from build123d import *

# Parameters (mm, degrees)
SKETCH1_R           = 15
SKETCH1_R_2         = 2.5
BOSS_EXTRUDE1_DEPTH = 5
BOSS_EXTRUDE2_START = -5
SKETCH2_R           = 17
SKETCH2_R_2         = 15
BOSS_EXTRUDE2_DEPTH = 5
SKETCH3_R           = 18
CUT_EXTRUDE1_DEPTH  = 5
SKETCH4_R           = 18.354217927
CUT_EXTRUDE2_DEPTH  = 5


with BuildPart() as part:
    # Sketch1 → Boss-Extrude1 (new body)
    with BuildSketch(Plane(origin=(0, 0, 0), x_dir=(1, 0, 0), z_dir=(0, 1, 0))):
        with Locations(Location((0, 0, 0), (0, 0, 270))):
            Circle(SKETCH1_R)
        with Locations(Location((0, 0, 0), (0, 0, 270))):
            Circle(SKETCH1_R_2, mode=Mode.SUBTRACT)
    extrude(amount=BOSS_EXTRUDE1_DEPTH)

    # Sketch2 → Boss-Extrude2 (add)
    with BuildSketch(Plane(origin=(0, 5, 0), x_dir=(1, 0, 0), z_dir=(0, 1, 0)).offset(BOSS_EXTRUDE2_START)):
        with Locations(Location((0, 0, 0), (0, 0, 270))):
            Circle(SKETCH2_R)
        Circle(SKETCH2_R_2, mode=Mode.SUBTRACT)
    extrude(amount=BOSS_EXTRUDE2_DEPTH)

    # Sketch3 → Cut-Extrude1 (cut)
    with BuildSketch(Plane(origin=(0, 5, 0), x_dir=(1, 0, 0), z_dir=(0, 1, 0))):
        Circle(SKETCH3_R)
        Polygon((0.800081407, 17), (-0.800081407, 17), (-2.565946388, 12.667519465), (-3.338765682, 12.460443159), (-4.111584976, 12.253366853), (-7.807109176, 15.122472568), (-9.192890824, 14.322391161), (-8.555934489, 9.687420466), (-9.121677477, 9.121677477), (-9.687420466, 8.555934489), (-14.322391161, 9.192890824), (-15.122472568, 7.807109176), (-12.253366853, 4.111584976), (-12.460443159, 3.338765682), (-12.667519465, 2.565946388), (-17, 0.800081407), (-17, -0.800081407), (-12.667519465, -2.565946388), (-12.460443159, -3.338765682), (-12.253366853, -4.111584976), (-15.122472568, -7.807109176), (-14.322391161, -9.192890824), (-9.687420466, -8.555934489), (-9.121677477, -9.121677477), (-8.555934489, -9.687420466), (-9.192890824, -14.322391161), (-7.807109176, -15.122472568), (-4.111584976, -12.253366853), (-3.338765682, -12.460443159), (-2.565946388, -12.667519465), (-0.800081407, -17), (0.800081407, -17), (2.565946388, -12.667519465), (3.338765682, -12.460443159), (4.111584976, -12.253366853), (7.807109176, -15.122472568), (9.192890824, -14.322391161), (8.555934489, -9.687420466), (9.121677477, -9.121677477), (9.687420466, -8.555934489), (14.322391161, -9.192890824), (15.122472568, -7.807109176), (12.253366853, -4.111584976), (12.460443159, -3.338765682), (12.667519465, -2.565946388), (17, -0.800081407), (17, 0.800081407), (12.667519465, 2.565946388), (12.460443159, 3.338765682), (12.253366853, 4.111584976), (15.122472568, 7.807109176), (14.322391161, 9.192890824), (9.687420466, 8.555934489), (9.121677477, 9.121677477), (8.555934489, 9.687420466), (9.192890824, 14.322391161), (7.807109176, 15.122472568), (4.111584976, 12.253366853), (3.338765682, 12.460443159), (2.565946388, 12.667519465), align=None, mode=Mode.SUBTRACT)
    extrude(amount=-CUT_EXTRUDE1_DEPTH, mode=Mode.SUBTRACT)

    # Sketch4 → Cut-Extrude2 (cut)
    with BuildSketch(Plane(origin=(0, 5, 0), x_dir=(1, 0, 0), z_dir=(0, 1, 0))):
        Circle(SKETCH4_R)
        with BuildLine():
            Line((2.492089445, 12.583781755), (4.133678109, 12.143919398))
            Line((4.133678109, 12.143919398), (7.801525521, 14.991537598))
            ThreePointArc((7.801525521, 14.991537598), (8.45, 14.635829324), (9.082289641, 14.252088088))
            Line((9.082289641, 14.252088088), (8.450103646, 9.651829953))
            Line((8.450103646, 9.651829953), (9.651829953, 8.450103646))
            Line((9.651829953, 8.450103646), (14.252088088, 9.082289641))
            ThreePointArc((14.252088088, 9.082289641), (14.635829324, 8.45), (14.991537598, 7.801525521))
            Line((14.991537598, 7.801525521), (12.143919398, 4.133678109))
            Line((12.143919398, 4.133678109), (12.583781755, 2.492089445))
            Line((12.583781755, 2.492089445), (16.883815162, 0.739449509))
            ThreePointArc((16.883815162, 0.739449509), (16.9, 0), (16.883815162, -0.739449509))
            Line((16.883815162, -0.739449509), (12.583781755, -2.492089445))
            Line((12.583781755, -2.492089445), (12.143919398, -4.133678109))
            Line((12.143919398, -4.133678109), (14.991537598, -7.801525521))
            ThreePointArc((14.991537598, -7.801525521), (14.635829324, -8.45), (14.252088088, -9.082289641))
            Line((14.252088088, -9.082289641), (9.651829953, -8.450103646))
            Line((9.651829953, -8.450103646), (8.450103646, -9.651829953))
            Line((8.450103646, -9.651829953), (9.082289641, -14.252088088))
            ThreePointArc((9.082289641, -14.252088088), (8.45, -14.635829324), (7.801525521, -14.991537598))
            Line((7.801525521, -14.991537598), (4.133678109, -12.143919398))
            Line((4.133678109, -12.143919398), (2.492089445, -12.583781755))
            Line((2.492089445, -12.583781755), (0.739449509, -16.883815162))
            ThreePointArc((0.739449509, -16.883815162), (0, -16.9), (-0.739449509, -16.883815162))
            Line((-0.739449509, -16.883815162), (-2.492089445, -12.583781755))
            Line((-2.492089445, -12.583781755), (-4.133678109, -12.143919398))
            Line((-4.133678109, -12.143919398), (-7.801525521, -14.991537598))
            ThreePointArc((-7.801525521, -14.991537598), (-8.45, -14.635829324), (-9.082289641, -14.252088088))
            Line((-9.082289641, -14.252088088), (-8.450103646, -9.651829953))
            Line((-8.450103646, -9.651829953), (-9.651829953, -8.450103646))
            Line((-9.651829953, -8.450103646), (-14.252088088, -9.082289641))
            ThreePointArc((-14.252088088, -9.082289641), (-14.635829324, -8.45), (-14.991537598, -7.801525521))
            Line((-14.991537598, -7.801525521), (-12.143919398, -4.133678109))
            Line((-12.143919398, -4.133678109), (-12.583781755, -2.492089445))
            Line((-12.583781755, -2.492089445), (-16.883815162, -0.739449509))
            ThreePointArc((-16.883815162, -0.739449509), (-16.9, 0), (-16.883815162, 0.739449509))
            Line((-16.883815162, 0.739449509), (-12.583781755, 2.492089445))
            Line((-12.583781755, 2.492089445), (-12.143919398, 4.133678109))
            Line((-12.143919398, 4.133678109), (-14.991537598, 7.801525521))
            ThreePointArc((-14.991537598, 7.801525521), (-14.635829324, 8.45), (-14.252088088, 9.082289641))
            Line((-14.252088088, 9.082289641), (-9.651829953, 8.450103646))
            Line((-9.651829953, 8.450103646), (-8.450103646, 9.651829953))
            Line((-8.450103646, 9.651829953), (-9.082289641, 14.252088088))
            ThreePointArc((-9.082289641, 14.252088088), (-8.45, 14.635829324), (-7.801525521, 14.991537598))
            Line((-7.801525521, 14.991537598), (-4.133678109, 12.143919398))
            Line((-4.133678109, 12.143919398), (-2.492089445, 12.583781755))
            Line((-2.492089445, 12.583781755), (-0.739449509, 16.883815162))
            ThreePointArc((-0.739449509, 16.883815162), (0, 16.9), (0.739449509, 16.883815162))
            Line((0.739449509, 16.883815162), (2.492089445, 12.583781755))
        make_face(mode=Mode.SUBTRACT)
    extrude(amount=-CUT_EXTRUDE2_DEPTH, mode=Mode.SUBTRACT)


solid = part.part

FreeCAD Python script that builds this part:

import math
import FreeCAD as App
import Part
import Sketcher
from FreeCAD import Vector
Q = App.Units.Quantity


def add_polygon(sketch, points):
    """Adds a closed chain of lines whose ends are joined by coincident constraints."""
    first, n = sketch.GeometryCount, len(points)
    for a, b in zip(points, points[1:] + points[:1]):
        sketch.addGeometry(Part.LineSegment(App.Vector(*a, 0), App.Vector(*b, 0)), False)
    for i in range(n):
        sketch.addConstraint(Sketcher.Constraint("Coincident", first + i, 2, first + (i + 1) % n, 1))

doc = App.newDocument("Part")
body = doc.addObject("PartDesign::Body", "Body")

sketch1 = doc.addObject("Sketcher::SketchObject", "Sketch")
body.addObject(sketch1)
sketch1.AttachmentSupport = (doc.XZ_Plane, [""])
sketch1.MapMode = "FlatFace"
sketch1.addGeometry(Part.Circle(Vector(0, 0, 0), Vector(0, 0, 1), 15), False)
sketch1.addGeometry(Part.Circle(Vector(0, 0, 0), Vector(0, 0, 1), 2.5), False)
sketch1.addConstraint(Sketcher.Constraint("Coincident", 0, 3, -1, 1))
sketch1.addConstraint(Sketcher.Constraint("Coincident", 1, 3, -1, 1))
sketch1.addConstraint(Sketcher.Constraint("Diameter", 0, 30.0))
sketch1.addConstraint(Sketcher.Constraint("Diameter", 1, 5.0))
pad1 = doc.addObject("PartDesign::Pad", "Pad")
body.addObject(pad1)
pad1.Profile = sketch1
pad1.Length = 5
pad1.Reversed = True

sketch2 = doc.addObject("Sketcher::SketchObject", "Sketch001")
body.addObject(sketch2)
sketch2.AttachmentSupport = (doc.XZ_Plane, [""])
sketch2.MapMode = "FlatFace"
sketch2.addGeometry(Part.Circle(Vector(0, 0, 0), Vector(0, 0, 1), 17), False)
sketch2.addGeometry(Part.Circle(Vector(0, 0, 0), Vector(0, 0, 1), 15), False)
sketch2.addConstraint(Sketcher.Constraint("Coincident", 0, 3, -1, 1))
sketch2.addConstraint(Sketcher.Constraint("Coincident", 1, 3, -1, 1))
sketch2.addConstraint(Sketcher.Constraint("Diameter", 0, 34.0))
sketch2.addConstraint(Sketcher.Constraint("Diameter", 1, 30.0))
pad2 = doc.addObject("PartDesign::Pad", "Pad001")
body.addObject(pad2)
pad2.Profile = sketch2
pad2.Length = 5
pad2.Reversed = True

sketch3 = doc.addObject("Sketcher::SketchObject", "Sketch002")
body.addObject(sketch3)
sketch3.AttachmentSupport = (doc.XZ_Plane, [""])
sketch3.MapMode = "FlatFace"
sketch3.AttachmentOffset = App.Placement(Vector(0, 0, -5), App.Rotation())
sketch3.addGeometry(Part.Circle(Vector(0, 0, 0), Vector(0, 0, 1), 18), False)
add_polygon(sketch3, [(-0.8, -17), (0.8, -17), (2.6, -12.7), (4.1, -12.3), (7.8, -15.1), (9.2, -14.3), (8.6, -9.7), (9.1, -9.1), (9.7, -8.6), (14.3, -9.2), (15.1, -7.8), (12.3, -4.1), (12.7, -2.6), (17, -0.8), (17, 0.8), (12.7, 2.6), (12.3, 4.1), (15.1, 7.8), (14.3, 9.2), (9.7, 8.6), (9.1, 9.1), (8.6, 9.7), (9.2, 14.3), (7.8, 15.1), (4.1, 12.3), (2.6, 12.7), (0.8, 17), (-0.8, 17), (-2.6, 12.7), (-4.1, 12.3), (-7.8, 15.1), (-9.2, 14.3), (-8.6, 9.7), (-9.1, 9.1), (-9.7, 8.6), (-14.3, 9.2), (-15.1, 7.8), (-12.3, 4.1), (-12.7, 2.6), (-17, 0.8), (-17, -0.8), (-12.7, -2.6), (-12.3, -4.1), (-15.1, -7.8), (-14.3, -9.2), (-9.7, -8.6), (-9.1, -9.1), (-8.6, -9.7), (-9.2, -14.3), (-7.8, -15.1), (-4.1, -12.3), (-2.6, -12.7)])
sketch3.addConstraint(Sketcher.Constraint("Horizontal", 1))
sketch3.addConstraint(Sketcher.Constraint("Vertical", 14))
sketch3.addConstraint(Sketcher.Constraint("Horizontal", 27))
sketch3.addConstraint(Sketcher.Constraint("Vertical", 40))
sketch3.addConstraint(Sketcher.Constraint("Coincident", 0, 3, -1, 1))
sketch3.addConstraint(Sketcher.Constraint("Symmetric", 1, 2, 27, 2, -1, 1))
sketch3.addConstraint(Sketcher.Constraint("Symmetric", 2, 2, 28, 2, -1, 1))
sketch3.addConstraint(Sketcher.Constraint("Symmetric", 3, 2, 29, 2, -1, 1))
sketch3.addConstraint(Sketcher.Constraint("Symmetric", 4, 2, 30, 2, -1, 1))
sketch3.addConstraint(Sketcher.Constraint("Symmetric", 5, 2, 31, 2, -1, 1))
sketch3.addConstraint(Sketcher.Constraint("Symmetric", 6, 2, 32, 2, -1, 1))
sketch3.addConstraint(Sketcher.Constraint("Symmetric", 7, 2, 33, 2, -1, 1))
sketch3.addConstraint(Sketcher.Constraint("Symmetric", 8, 2, 34, 2, -1, 1))
sketch3.addConstraint(Sketcher.Constraint("Symmetric", 9, 2, 35, 2, -1, 1))
sketch3.addConstraint(Sketcher.Constraint("Symmetric", 10, 2, 36, 2, -1, 1))
sketch3.addConstraint(Sketcher.Constraint("Symmetric", 11, 2, 37, 2, -1, 1))
sketch3.addConstraint(Sketcher.Constraint("Symmetric", 12, 2, 38, 2, -1, 1))
sketch3.addConstraint(Sketcher.Constraint("Symmetric", 13, 2, 39, 2, -1, 1))
sketch3.addConstraint(Sketcher.Constraint("Symmetric", 15, 2, 41, 2, -1, 1))
sketch3.addConstraint(Sketcher.Constraint("Symmetric", 16, 2, 42, 2, -1, 1))
sketch3.addConstraint(Sketcher.Constraint("Symmetric", 17, 2, 43, 2, -1, 1))
sketch3.addConstraint(Sketcher.Constraint("Symmetric", 18, 2, 44, 2, -1, 1))
sketch3.addConstraint(Sketcher.Constraint("Symmetric", 19, 2, 45, 2, -1, 1))
sketch3.addConstraint(Sketcher.Constraint("Symmetric", 20, 2, 46, 2, -1, 1))
sketch3.addConstraint(Sketcher.Constraint("Symmetric", 21, 2, 47, 2, -1, 1))
sketch3.addConstraint(Sketcher.Constraint("Symmetric", 22, 2, 48, 2, -1, 1))
sketch3.addConstraint(Sketcher.Constraint("Symmetric", 23, 2, 49, 2, -1, 1))
sketch3.addConstraint(Sketcher.Constraint("Symmetric", 24, 2, 50, 2, -1, 1))
sketch3.addConstraint(Sketcher.Constraint("Symmetric", 25, 2, 51, 2, -1, 1))
sketch3.addConstraint(Sketcher.Constraint("Symmetric", 25, 2, 28, 2, -2))
sketch3.addConstraint(Sketcher.Constraint("Symmetric", 24, 2, 29, 2, -2))
sketch3.addConstraint(Sketcher.Constraint("Symmetric", 23, 2, 30, 2, -2))
sketch3.addConstraint(Sketcher.Constraint("Symmetric", 22, 2, 31, 2, -2))
sketch3.addConstraint(Sketcher.Constraint("Symmetric", 21, 2, 32, 2, -2))
sketch3.addConstraint(Sketcher.Constraint("Symmetric", 20, 2, 33, 2, -2))
sketch3.addConstraint(Sketcher.Constraint("Symmetric", 19, 2, 34, 2, -2))
sketch3.addConstraint(Sketcher.Constraint("Symmetric", 18, 2, 35, 2, -2))
sketch3.addConstraint(Sketcher.Constraint("Symmetric", 17, 2, 36, 2, -2))
sketch3.addConstraint(Sketcher.Constraint("Symmetric", 16, 2, 37, 2, -2))
sketch3.addConstraint(Sketcher.Constraint("Symmetric", 15, 2, 38, 2, -2))
sketch3.addConstraint(Sketcher.Constraint("Parallel", 7, 8))
sketch3.addConstraint(Sketcher.Constraint("Perpendicular", 2, 15))
sketch3.addConstraint(Sketcher.Constraint("Perpendicular", 3, 16))
sketch3.addConstraint(Sketcher.Constraint("Perpendicular", 4, 17))
sketch3.addConstraint(Sketcher.Constraint("Perpendicular", 5, 18))
sketch3.addConstraint(Sketcher.Constraint("Perpendicular", 6, 19))
sketch3.addConstraint(Sketcher.Constraint("Perpendicular", 8, 20))
sketch3.addConstraint(Sketcher.Constraint("Perpendicular", 13, 26))
sketch3.addConstraint(Sketcher.Constraint("Perpendicular", 28, 41))
sketch3.addConstraint(Sketcher.Constraint("Perpendicular", 39, 52))
sketch3.addConstraint(Sketcher.Constraint("Horizontal", 14, 2, 39, 2))
sketch3.addConstraint(Sketcher.Constraint("Equal", 27, 14))
sketch3.addConstraint(Sketcher.Constraint("Equal", 2, 4))
sketch3.addConstraint(Sketcher.Constraint("Equal", 3, 5))
sketch3.addConstraint(Sketcher.Constraint("Equal", 4, 6))
sketch3.addConstraint(Sketcher.Constraint("Equal", 7, 8))
sketch3.addConstraint(Sketcher.Constraint("Equal", 6, 9))
sketch3.addConstraint(Sketcher.Constraint("Equal", 5, 10))
sketch3.addConstraint(Sketcher.Constraint("Equal", 9, 11))
sketch3.addConstraint(Sketcher.Constraint("Equal", 10, 12))
sketch3.addConstraint(Sketcher.Constraint("Equal", 11, 13))
sketch3.addConstraint(Sketcher.Constraint("Diameter", 0, 36.0))
sketch3.addConstraint(Sketcher.Constraint("Angle", 3, Q("15 deg")))
sketch3.addConstraint(Sketcher.Constraint("Angle", 5, Q("30 deg")))
sketch3.addConstraint(Sketcher.Constraint("DistanceY", 1, 2, -1, 1, 17.0))
sketch3.addConstraint(Sketcher.Constraint("DistanceY", 2, 2, 6, 2, 2.980099))
sketch3.addConstraint(Sketcher.Constraint("DistanceX", 5, 2, 9, 2, 5.1295))
sketch3.addConstraint(Sketcher.Constraint("Distance", 7, 0.800081))
sketch3.addConstraint(Sketcher.Constraint("DistanceX", 1, 1, 1, 2, 1.600163))
sketch3.addConstraint(Sketcher.Constraint("DistanceY", 2, 2, -1, 1, 12.667519))
sketch3.addConstraint(Sketcher.Constraint("DistanceX", -1, 1, 4, 2, 7.807109))
pocket1 = doc.addObject("PartDesign::Pocket", "Pocket")
body.addObject(pocket1)
pocket1.Profile = sketch3
pocket1.Length = 5
pocket1.Reversed = True

sketch4 = doc.addObject("Sketcher::SketchObject", "Sketch003")
body.addObject(sketch4)
sketch4.AttachmentSupport = (doc.XZ_Plane, [""])
sketch4.MapMode = "FlatFace"
sketch4.AttachmentOffset = App.Placement(Vector(0, 0, -5), App.Rotation())
sketch4.addGeometry(Part.Circle(Vector(0, 0, 0), Vector(0, 0, 1), 18.4), False)
sketch4.addGeometry(Part.LineSegment(Vector(0.7, -16.9, 0), Vector(2.5, -12.6, 0)), False)
sketch4.addGeometry(Part.LineSegment(Vector(2.5, -12.6, 0), Vector(4.1, -12.1, 0)), False)
sketch4.addGeometry(Part.LineSegment(Vector(4.1, -12.1, 0), Vector(7.8, -15, 0)), False)
sketch4.addGeometry(Part.ArcOfCircle(Part.Circle(Vector(0, 0, 0), Vector(0, 0, 1), 16.9), math.radians(-62.51), math.radians(-57.49)), False)
sketch4.addGeometry(Part.LineSegment(Vector(9.1, -14.3, 0), Vector(8.5, -9.7, 0)), False)
sketch4.addGeometry(Part.LineSegment(Vector(8.5, -9.7, 0), Vector(9.7, -8.5, 0)), False)
sketch4.addGeometry(Part.LineSegment(Vector(9.7, -8.5, 0), Vector(14.3, -9.1, 0)), False)
sketch4.addGeometry(Part.ArcOfCircle(Part.Circle(Vector(0, 0, 0), Vector(0, 0, 1), 16.9), math.radians(-32.51), math.radians(-27.49)), False)
sketch4.addGeometry(Part.LineSegment(Vector(15, -7.8, 0), Vector(12.1, -4.1, 0)), False)
sketch4.addGeometry(Part.LineSegment(Vector(12.1, -4.1, 0), Vector(12.6, -2.5, 0)), False)
sketch4.addGeometry(Part.LineSegment(Vector(12.6, -2.5, 0), Vector(16.9, -0.7, 0)), False)
sketch4.addGeometry(Part.ArcOfCircle(Part.Circle(Vector(0, 0, 0), Vector(0, 0, 1), 16.9), math.radians(-2.51), math.radians(2.51)), False)
sketch4.addGeometry(Part.LineSegment(Vector(16.9, 0.7, 0), Vector(12.6, 2.5, 0)), False)
sketch4.addGeometry(Part.LineSegment(Vector(12.6, 2.5, 0), Vector(12.1, 4.1, 0)), False)
sketch4.addGeometry(Part.LineSegment(Vector(12.1, 4.1, 0), Vector(15, 7.8, 0)), False)
sketch4.addGeometry(Part.ArcOfCircle(Part.Circle(Vector(0, 0, 0), Vector(0, 0, 1), 16.9), math.radians(27.49), math.radians(32.51)), False)
sketch4.addGeometry(Part.LineSegment(Vector(14.3, 9.1, 0), Vector(9.7, 8.5, 0)), False)
sketch4.addGeometry(Part.LineSegment(Vector(9.7, 8.5, 0), Vector(8.5, 9.7, 0)), False)
sketch4.addGeometry(Part.LineSegment(Vector(8.5, 9.7, 0), Vector(9.1, 14.3, 0)), False)
sketch4.addGeometry(Part.ArcOfCircle(Part.Circle(Vector(0, 0, 0), Vector(0, 0, 1), 16.9), math.radians(57.49), math.radians(62.51)), False)
sketch4.addGeometry(Part.LineSegment(Vector(7.8, 15, 0), Vector(4.1, 12.1, 0)), False)
sketch4.addGeometry(Part.LineSegment(Vector(4.1, 12.1, 0), Vector(2.5, 12.6, 0)), False)
sketch4.addGeometry(Part.LineSegment(Vector(2.5, 12.6, 0), Vector(0.7, 16.9, 0)), False)
sketch4.addGeometry(Part.ArcOfCircle(Part.Circle(Vector(0, 0, 0), Vector(0, 0, 1), 16.9), math.radians(87.49), math.radians(92.51)), False)
sketch4.addGeometry(Part.LineSegment(Vector(-0.7, 16.9, 0), Vector(-2.5, 12.6, 0)), False)
sketch4.addGeometry(Part.LineSegment(Vector(-2.5, 12.6, 0), Vector(-4.1, 12.1, 0)), False)
sketch4.addGeometry(Part.LineSegment(Vector(-4.1, 12.1, 0), Vector(-7.8, 15, 0)), False)
sketch4.addGeometry(Part.ArcOfCircle(Part.Circle(Vector(0, 0, 0), Vector(0, 0, 1), 16.9), math.radians(117.49), math.radians(122.51)), False)
sketch4.addGeometry(Part.LineSegment(Vector(-9.1, 14.3, 0), Vector(-8.5, 9.7, 0)), False)
sketch4.addGeometry(Part.LineSegment(Vector(-8.5, 9.7, 0), Vector(-9.7, 8.5, 0)), False)
sketch4.addGeometry(Part.LineSegment(Vector(-9.7, 8.5, 0), Vector(-14.3, 9.1, 0)), False)
sketch4.addGeometry(Part.ArcOfCircle(Part.Circle(Vector(0, 0, 0), Vector(0, 0, 1), 16.9), math.radians(147.49), math.radians(152.51)), False)
sketch4.addGeometry(Part.LineSegment(Vector(-15, 7.8, 0), Vector(-12.1, 4.1, 0)), False)
sketch4.addGeometry(Part.LineSegment(Vector(-12.1, 4.1, 0), Vector(-12.6, 2.5, 0)), False)
sketch4.addGeometry(Part.LineSegment(Vector(-12.6, 2.5, 0), Vector(-16.9, 0.7, 0)), False)
sketch4.addGeometry(Part.ArcOfCircle(Part.Circle(Vector(0, 0, 0), Vector(0, 0, 1), 16.9), math.radians(177.49), math.radians(182.51)), False)
sketch4.addGeometry(Part.LineSegment(Vector(-16.9, -0.7, 0), Vector(-12.6, -2.5, 0)), False)
sketch4.addGeometry(Part.LineSegment(Vector(-12.6, -2.5, 0), Vector(-12.1, -4.1, 0)), False)
sketch4.addGeometry(Part.LineSegment(Vector(-12.1, -4.1, 0), Vector(-15, -7.8, 0)), False)
sketch4.addGeometry(Part.ArcOfCircle(Part.Circle(Vector(0, 0, 0), Vector(0, 0, 1), 16.9), math.radians(-152.51), math.radians(-147.49)), False)
sketch4.addGeometry(Part.LineSegment(Vector(-14.3, -9.1, 0), Vector(-9.7, -8.5, 0)), False)
sketch4.addGeometry(Part.LineSegment(Vector(-9.7, -8.5, 0), Vector(-8.5, -9.7, 0)), False)
sketch4.addGeometry(Part.LineSegment(Vector(-8.5, -9.7, 0), Vector(-9.1, -14.3, 0)), False)
sketch4.addGeometry(Part.ArcOfCircle(Part.Circle(Vector(0, 0, 0), Vector(0, 0, 1), 16.9), math.radians(-122.51), math.radians(-117.49)), False)
sketch4.addGeometry(Part.LineSegment(Vector(-7.8, -15, 0), Vector(-4.1, -12.1, 0)), False)
sketch4.addGeometry(Part.LineSegment(Vector(-4.1, -12.1, 0), Vector(-2.5, -12.6, 0)), False)
sketch4.addGeometry(Part.LineSegment(Vector(-2.5, -12.6, 0), Vector(-0.7, -16.9, 0)), False)
sketch4.addGeometry(Part.ArcOfCircle(Part.Circle(Vector(0, 0, 0), Vector(0, 0, 1), 16.9), math.radians(-92.51), math.radians(-87.49)), False)
sketch4.addConstraint(Sketcher.Constraint("Coincident", 1, 2, 2, 1))
sketch4.addConstraint(Sketcher.Constraint("Coincident", 2, 2, 3, 1))
sketch4.addConstraint(Sketcher.Constraint("Coincident", 3, 2, 4, 1))
sketch4.addConstraint(Sketcher.Constraint("Coincident", 4, 2, 5, 1))
sketch4.addConstraint(Sketcher.Constraint("Coincident", 5, 2, 6, 1))
sketch4.addConstraint(Sketcher.Constraint("Coincident", 6, 2, 7, 1))
sketch4.addConstraint(Sketcher.Constraint("Coincident", 7, 2, 8, 1))
sketch4.addConstraint(Sketcher.Constraint("Coincident", 8, 2, 9, 1))
sketch4.addConstraint(Sketcher.Constraint("Coincident", 9, 2, 10, 1))
sketch4.addConstraint(Sketcher.Constraint("Coincident", 10, 2, 11, 1))
sketch4.addConstraint(Sketcher.Constraint("Coincident", 11, 2, 12, 1))
sketch4.addConstraint(Sketcher.Constraint("Coincident", 12, 2, 13, 1))
sketch4.addConstraint(Sketcher.Constraint("Coincident", 13, 2, 14, 1))
sketch4.addConstraint(Sketcher.Constraint("Coincident", 14, 2, 15, 1))
sketch4.addConstraint(Sketcher.Constraint("Coincident", 15, 2, 16, 1))
sketch4.addConstraint(Sketcher.Constraint("Coincident", 16, 2, 17, 1))
sketch4.addConstraint(Sketcher.Constraint("Coincident", 17, 2, 18, 1))
sketch4.addConstraint(Sketcher.Constraint("Coincident", 18, 2, 19, 1))
sketch4.addConstraint(Sketcher.Constraint("Coincident", 19, 2, 20, 1))
sketch4.addConstraint(Sketcher.Constraint("Coincident", 20, 2, 21, 1))
sketch4.addConstraint(Sketcher.Constraint("Coincident", 21, 2, 22, 1))
sketch4.addConstraint(Sketcher.Constraint("Coincident", 22, 2, 23, 1))
sketch4.addConstraint(Sketcher.Constraint("Coincident", 23, 2, 24, 1))
sketch4.addConstraint(Sketcher.Constraint("Coincident", 24, 2, 25, 1))
sketch4.addConstraint(Sketcher.Constraint("Coincident", 25, 2, 26, 1))
sketch4.addConstraint(Sketcher.Constraint("Coincident", 26, 2, 27, 1))
sketch4.addConstraint(Sketcher.Constraint("Coincident", 27, 2, 28, 1))
sketch4.addConstraint(Sketcher.Constraint("Coincident", 28, 2, 29, 1))
sketch4.addConstraint(Sketcher.Constraint("Coincident", 29, 2, 30, 1))
sketch4.addConstraint(Sketcher.Constraint("Coincident", 30, 2, 31, 1))
sketch4.addConstraint(Sketcher.Constraint("Coincident", 31, 2, 32, 1))
sketch4.addConstraint(Sketcher.Constraint("Coincident", 32, 2, 33, 1))
sketch4.addConstraint(Sketcher.Constraint("Coincident", 33, 2, 34, 1))
sketch4.addConstraint(Sketcher.Constraint("Coincident", 34, 2, 35, 1))
sketch4.addConstraint(Sketcher.Constraint("Coincident", 35, 2, 36, 1))
sketch4.addConstraint(Sketcher.Constraint("Coincident", 36, 2, 37, 1))
sketch4.addConstraint(Sketcher.Constraint("Coincident", 37, 2, 38, 1))
sketch4.addConstraint(Sketcher.Constraint("Coincident", 38, 2, 39, 1))
sketch4.addConstraint(Sketcher.Constraint("Coincident", 39, 2, 40, 1))
sketch4.addConstraint(Sketcher.Constraint("Coincident", 40, 2, 41, 1))
sketch4.addConstraint(Sketcher.Constraint("Coincident", 41, 2, 42, 1))
sketch4.addConstraint(Sketcher.Constraint("Coincident", 42, 2, 43, 1))
sketch4.addConstraint(Sketcher.Constraint("Coincident", 43, 2, 44, 1))
sketch4.addConstraint(Sketcher.Constraint("Coincident", 44, 2, 45, 1))
sketch4.addConstraint(Sketcher.Constraint("Coincident", 45, 2, 46, 1))
sketch4.addConstraint(Sketcher.Constraint("Coincident", 46, 2, 47, 1))
sketch4.addConstraint(Sketcher.Constraint("Coincident", 47, 2, 48, 1))
sketch4.addConstraint(Sketcher.Constraint("Coincident", 48, 2, 1, 1))
sketch4.addConstraint(Sketcher.Constraint("Coincident", 0, 3, -1, 1))
sketch4.addConstraint(Sketcher.Constraint("Coincident", 4, 3, -1, 1))
sketch4.addConstraint(Sketcher.Constraint("Coincident", 8, 3, -1, 1))
sketch4.addConstraint(Sketcher.Constraint("Coincident", 12, 3, -1, 1))
sketch4.addConstraint(Sketcher.Constraint("Coincident", 16, 3, -1, 1))
sketch4.addConstraint(Sketcher.Constraint("Coincident", 20, 3, -1, 1))
sketch4.addConstraint(Sketcher.Constraint("Coincident", 24, 3, -1, 1))
sketch4.addConstraint(Sketcher.Constraint("Coincident", 28, 3, -1, 1))
sketch4.addConstraint(Sketcher.Constraint("Coincident", 32, 3, -1, 1))
sketch4.addConstraint(Sketcher.Constraint("Coincident", 36, 3, -1, 1))
sketch4.addConstraint(Sketcher.Constraint("Coincident", 40, 3, -1, 1))
sketch4.addConstraint(Sketcher.Constraint("Coincident", 44, 3, -1, 1))
sketch4.addConstraint(Sketcher.Constraint("Coincident", 48, 3, -1, 1))
sketch4.addConstraint(Sketcher.Constraint("Equal", 4, 8))
sketch4.addConstraint(Sketcher.Constraint("Equal", 8, 12))
sketch4.addConstraint(Sketcher.Constraint("Equal", 12, 16))
sketch4.addConstraint(Sketcher.Constraint("Equal", 16, 20))
sketch4.addConstraint(Sketcher.Constraint("Equal", 20, 24))
sketch4.addConstraint(Sketcher.Constraint("Equal", 24, 28))
sketch4.addConstraint(Sketcher.Constraint("Equal", 28, 32))
sketch4.addConstraint(Sketcher.Constraint("Equal", 32, 36))
sketch4.addConstraint(Sketcher.Constraint("Equal", 36, 40))
sketch4.addConstraint(Sketcher.Constraint("Equal", 40, 44))
sketch4.addConstraint(Sketcher.Constraint("Equal", 44, 48))
sketch4.addConstraint(Sketcher.Constraint("Symmetric", 1, 2, 25, 2, -1, 1))
sketch4.addConstraint(Sketcher.Constraint("Symmetric", 2, 2, 26, 2, -1, 1))
sketch4.addConstraint(Sketcher.Constraint("Symmetric", 5, 2, 29, 2, -1, 1))
sketch4.addConstraint(Sketcher.Constraint("Symmetric", 6, 2, 30, 2, -1, 1))
sketch4.addConstraint(Sketcher.Constraint("Symmetric", 9, 2, 33, 2, -1, 1))
sketch4.addConstraint(Sketcher.Constraint("Symmetric", 10, 2, 34, 2, -1, 1))
sketch4.addConstraint(Sketcher.Constraint("Symmetric", 13, 2, 37, 2, -1, 1))
sketch4.addConstraint(Sketcher.Constraint("Symmetric", 14, 2, 38, 2, -1, 1))
sketch4.addConstraint(Sketcher.Constraint("Symmetric", 17, 2, 41, 2, -1, 1))
sketch4.addConstraint(Sketcher.Constraint("Symmetric", 18, 2, 42, 2, -1, 1))
sketch4.addConstraint(Sketcher.Constraint("Symmetric", 21, 2, 45, 2, -1, 1))
sketch4.addConstraint(Sketcher.Constraint("Symmetric", 22, 2, 46, 2, -1, 1))
sketch4.addConstraint(Sketcher.Constraint("Symmetric", 22, 2, 25, 2, -2))
sketch4.addConstraint(Sketcher.Constraint("Symmetric", 21, 2, 26, 2, -2))
sketch4.addConstraint(Sketcher.Constraint("Symmetric", 18, 2, 29, 2, -2))
sketch4.addConstraint(Sketcher.Constraint("Symmetric", 17, 2, 30, 2, -2))
sketch4.addConstraint(Sketcher.Constraint("Symmetric", 14, 2, 33, 2, -2))
sketch4.addConstraint(Sketcher.Constraint("Symmetric", 13, 2, 34, 2, -2))
sketch4.addConstraint(Sketcher.Constraint("Perpendicular", 1, 13))
sketch4.addConstraint(Sketcher.Constraint("Perpendicular", 2, 14))
sketch4.addConstraint(Sketcher.Constraint("Perpendicular", 3, 15))
sketch4.addConstraint(Sketcher.Constraint("Perpendicular", 5, 17))
sketch4.addConstraint(Sketcher.Constraint("Perpendicular", 6, 18))
sketch4.addConstraint(Sketcher.Constraint("Perpendicular", 7, 19))
sketch4.addConstraint(Sketcher.Constraint("Perpendicular", 9, 21))
sketch4.addConstraint(Sketcher.Constraint("Perpendicular", 11, 23))
sketch4.addConstraint(Sketcher.Constraint("Perpendicular", 13, 25))
sketch4.addConstraint(Sketcher.Constraint("Perpendicular", 15, 27))
sketch4.addConstraint(Sketcher.Constraint("Perpendicular", 17, 29))
sketch4.addConstraint(Sketcher.Constraint("Perpendicular", 19, 31))
sketch4.addConstraint(Sketcher.Constraint("Perpendicular", 21, 33))
sketch4.addConstraint(Sketcher.Constraint("Perpendicular", 23, 35))
sketch4.addConstraint(Sketcher.Constraint("Perpendicular", 25, 37))
sketch4.addConstraint(Sketcher.Constraint("Perpendicular", 27, 39))
sketch4.addConstraint(Sketcher.Constraint("Perpendicular", 29, 41))
sketch4.addConstraint(Sketcher.Constraint("Perpendicular", 31, 43))
sketch4.addConstraint(Sketcher.Constraint("Perpendicular", 33, 45))
sketch4.addConstraint(Sketcher.Constraint("Perpendicular", 35, 47))
sketch4.addConstraint(Sketcher.Constraint("Horizontal", 23, 2, 24, 2))
sketch4.addConstraint(Sketcher.Constraint("Horizontal", 20, 2, 27, 2))
sketch4.addConstraint(Sketcher.Constraint("Horizontal", 19, 2, 28, 2))
sketch4.addConstraint(Sketcher.Constraint("Equal", 1, 3))
sketch4.addConstraint(Sketcher.Constraint("Equal", 3, 5))
sketch4.addConstraint(Sketcher.Constraint("Equal", 2, 6))
sketch4.addConstraint(Sketcher.Constraint("Equal", 5, 7))
sketch4.addConstraint(Sketcher.Constraint("Equal", 7, 9))
sketch4.addConstraint(Sketcher.Constraint("Equal", 6, 10))
sketch4.addConstraint(Sketcher.Constraint("Equal", 9, 11))
sketch4.addConstraint(Sketcher.Constraint("Radius", 4, 16.9))
sketch4.addConstraint(Sketcher.Constraint("Angle", 2, Q("15 deg")))
sketch4.addConstraint(Sketcher.Constraint("Diameter", 0, 36.708436))
sketch4.addConstraint(Sketcher.Constraint("DistanceX", -1, 1, 1, 2, 2.492089))
sketch4.addConstraint(Sketcher.Constraint("DistanceY", 1, 2, -1, 1, 12.583782))
sketch4.addConstraint(Sketcher.Constraint("DistanceX", -1, 1, 2, 2, 4.133678))
sketch4.addConstraint(Sketcher.Constraint("DistanceX", -1, 1, 4, 2, 9.08229))
sketch4.addConstraint(Sketcher.Constraint("DistanceY", 5, 2, -1, 1, 9.65183))
pocket2 = doc.addObject("PartDesign::Pocket", "Pocket001")
body.addObject(pocket2)
pocket2.Profile = sketch4
pocket2.Length = 5
pocket2.Reversed = True

doc.recompute()
